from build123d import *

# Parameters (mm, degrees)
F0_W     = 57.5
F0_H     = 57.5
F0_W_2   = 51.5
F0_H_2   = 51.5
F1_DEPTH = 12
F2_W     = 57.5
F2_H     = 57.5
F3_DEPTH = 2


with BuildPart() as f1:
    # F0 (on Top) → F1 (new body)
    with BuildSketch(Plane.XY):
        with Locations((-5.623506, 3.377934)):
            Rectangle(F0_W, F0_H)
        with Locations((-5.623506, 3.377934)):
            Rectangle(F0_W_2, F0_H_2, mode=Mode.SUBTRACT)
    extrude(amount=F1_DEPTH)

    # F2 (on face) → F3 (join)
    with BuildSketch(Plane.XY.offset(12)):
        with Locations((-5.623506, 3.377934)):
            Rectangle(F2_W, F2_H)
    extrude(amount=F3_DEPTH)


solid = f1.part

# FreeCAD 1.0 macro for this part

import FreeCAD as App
import Part
import Sketcher
Q = App.Units.Quantity

doc = App.newDocument("Part")
body = doc.addObject("PartDesign::Body", "Body")

sketch1 = body.newObject("Sketcher::SketchObject", "Sketch")
sketch1.AttachmentSupport = (doc.getObject("XY_Plane"), [""])
sketch1.MapMode = "FlatFace"
sketch1.addGeometry(Part.LineSegment(App.Vector(-34, 32, 0), App.Vector(-34, -25, 0)), False)
sketch1.addGeometry(Part.LineSegment(App.Vector(-34, -25, 0), App.Vector(23, -25, 0)), False)
sketch1.addGeometry(Part.LineSegment(App.Vector(23, -25, 0), App.Vector(23, 32, 0)), False)
sketch1.addGeometry(Part.LineSegment(App.Vector(23, 32, 0), App.Vector(-34, 32, 0)), False)
sketch1.addGeometry(Part.LineSegment(App.Vector(20, -22, 0), App.Vector(-31, -22, 0)), False)
sketch1.addGeometry(Part.LineSegment(App.Vector(-31, -22, 0), App.Vector(-31, 29, 0)), False)
sketch1.addGeometry(Part.LineSegment(App.Vector(-31, 29, 0), App.Vector(20, 29, 0)), False)
sketch1.addGeometry(Part.LineSegment(App.Vector(20, 29, 0), App.Vector(20, -22, 0)), False)
sketch1.addConstraint(Sketcher.Constraint("Coincident", 0, 2, 1, 1))
sketch1.addConstraint(Sketcher.Constraint("Coincident", 1, 2, 2, 1))
sketch1.addConstraint(Sketcher.Constraint("Coincident", 2, 2, 3, 1))
sketch1.addConstraint(Sketcher.Constraint("Coincident", 3, 2, 0, 1))
sketch1.addConstraint(Sketcher.Constraint("Coincident", 4, 2, 5, 1))
sketch1.addConstraint(Sketcher.Constraint("Coincident", 5, 2, 6, 1))
sketch1.addConstraint(Sketcher.Constraint("Coincident", 6, 2, 7, 1))
sketch1.addConstraint(Sketcher.Constraint("Coincident", 7, 2, 4, 1))
sketch1.addConstraint(Sketcher.Constraint("Vertical", 0))
sketch1.addConstraint(Sketcher.Constraint("Horizontal", 1))
sketch1.addConstraint(Sketcher.Constraint("Vertical", 2))
sketch1.addConstraint(Sketcher.Constraint("Horizontal", 3))
sketch1.addConstraint(Sketcher.Constraint("Horizontal", 4))
sketch1.addConstraint(Sketcher.Constraint("Vertical", 5))
sketch1.addConstraint(Sketcher.Constraint("Horizontal", 6))
sketch1.addConstraint(Sketcher.Constraint("Vertical", 7))
sketch1.addConstraint(Sketcher.Constraint("Equal", 3, 0))
sketch1.addConstraint(Sketcher.Constraint("Equal", 6, 5))
sketch1.addConstraint(Sketcher.Constraint("DistanceX", 1, 1, 1, 2, Q("57.5 mm")))
sketch1.addConstraint(Sketcher.Constraint("DistanceX", 4, 2, 4, 1, Q("51.5 mm")))
sketch1.addConstraint(Sketcher.Constraint("DistanceX", 0, 2, 4, 2, Q("3 mm")))
sketch1.addConstraint(Sketcher.Constraint("DistanceY", 0, 2, 4, 2, Q("3 mm")))
sketch1.addConstraint(Sketcher.Constraint("DistanceX", 0, 2, -1, 1, Q("34.373506 mm")))
sketch1.addConstraint(Sketcher.Constraint("DistanceY", 0, 2, -1, 1, Q("25.372066 mm")))
pad1 = body.newObject("PartDesign::Pad", "Pad")
pad1.Profile = sketch1
pad1.Length = 12

sketch2 = body.newObject("Sketcher::SketchObject", "Sketch001")
sketch2.AttachmentSupport = (doc.getObject("XY_Plane"), [""])
sketch2.MapMode = "FlatFace"
sketch2.AttachmentOffset = App.Placement(App.Vector(0, 0, 12), App.Rotation())
sketch2.addGeometry(Part.LineSegment(App.Vector(-34, 32, 0), App.Vector(-34, -25, 0)), False)
sketch2.addGeometry(Part.LineSegment(App.Vector(-34, -25, 0), App.Vector(23, -25, 0)), False)
sketch2.addGeometry(Part.LineSegment(App.Vector(23, -25, 0), App.Vector(23, 32, 0)), False)
sketch2.addGeometry(Part.LineSegment(App.Vector(23, 32, 0), App.Vector(-34, 32, 0)), False)
sketch2.addConstraint(Sketcher.Constraint("Coincident", 0, 2, 1, 1))
sketch2.addConstraint(Sketcher.Constraint("Coincident", 1, 2, 2, 1))
sketch2.addConstraint(Sketcher.Constraint("Coincident", 2, 2, 3, 1))
sketch2.addConstraint(Sketcher.Constraint("Coincident", 3, 2, 0, 1))
sketch2.addConstraint(Sketcher.Constraint("Vertical", 0))
sketch2.addConstraint(Sketcher.Constraint("Horizontal", 1))
sketch2.addConstraint(Sketcher.Constraint("Vertical", 2))
sketch2.addConstraint(Sketcher.Constraint("Horizontal", 3))
sketch2.addConstraint(Sketcher.Constraint("Equal", 3, 0))
sketch2.addConstraint(Sketcher.Constraint("DistanceX", 1, 1, 1, 2, Q("57.5 mm")))
sketch2.addConstraint(Sketcher.Constraint("DistanceX", 0, 2, -1, 1, Q("34.373506 mm")))
sketch2.addConstraint(Sketcher.Constraint("DistanceY", 0, 2, -1, 1, Q("25.372066 mm")))
pad2 = body.newObject("PartDesign::Pad", "Pad001")
pad2.Profile = sketch2
pad2.Length = 2

doc.recompute()
